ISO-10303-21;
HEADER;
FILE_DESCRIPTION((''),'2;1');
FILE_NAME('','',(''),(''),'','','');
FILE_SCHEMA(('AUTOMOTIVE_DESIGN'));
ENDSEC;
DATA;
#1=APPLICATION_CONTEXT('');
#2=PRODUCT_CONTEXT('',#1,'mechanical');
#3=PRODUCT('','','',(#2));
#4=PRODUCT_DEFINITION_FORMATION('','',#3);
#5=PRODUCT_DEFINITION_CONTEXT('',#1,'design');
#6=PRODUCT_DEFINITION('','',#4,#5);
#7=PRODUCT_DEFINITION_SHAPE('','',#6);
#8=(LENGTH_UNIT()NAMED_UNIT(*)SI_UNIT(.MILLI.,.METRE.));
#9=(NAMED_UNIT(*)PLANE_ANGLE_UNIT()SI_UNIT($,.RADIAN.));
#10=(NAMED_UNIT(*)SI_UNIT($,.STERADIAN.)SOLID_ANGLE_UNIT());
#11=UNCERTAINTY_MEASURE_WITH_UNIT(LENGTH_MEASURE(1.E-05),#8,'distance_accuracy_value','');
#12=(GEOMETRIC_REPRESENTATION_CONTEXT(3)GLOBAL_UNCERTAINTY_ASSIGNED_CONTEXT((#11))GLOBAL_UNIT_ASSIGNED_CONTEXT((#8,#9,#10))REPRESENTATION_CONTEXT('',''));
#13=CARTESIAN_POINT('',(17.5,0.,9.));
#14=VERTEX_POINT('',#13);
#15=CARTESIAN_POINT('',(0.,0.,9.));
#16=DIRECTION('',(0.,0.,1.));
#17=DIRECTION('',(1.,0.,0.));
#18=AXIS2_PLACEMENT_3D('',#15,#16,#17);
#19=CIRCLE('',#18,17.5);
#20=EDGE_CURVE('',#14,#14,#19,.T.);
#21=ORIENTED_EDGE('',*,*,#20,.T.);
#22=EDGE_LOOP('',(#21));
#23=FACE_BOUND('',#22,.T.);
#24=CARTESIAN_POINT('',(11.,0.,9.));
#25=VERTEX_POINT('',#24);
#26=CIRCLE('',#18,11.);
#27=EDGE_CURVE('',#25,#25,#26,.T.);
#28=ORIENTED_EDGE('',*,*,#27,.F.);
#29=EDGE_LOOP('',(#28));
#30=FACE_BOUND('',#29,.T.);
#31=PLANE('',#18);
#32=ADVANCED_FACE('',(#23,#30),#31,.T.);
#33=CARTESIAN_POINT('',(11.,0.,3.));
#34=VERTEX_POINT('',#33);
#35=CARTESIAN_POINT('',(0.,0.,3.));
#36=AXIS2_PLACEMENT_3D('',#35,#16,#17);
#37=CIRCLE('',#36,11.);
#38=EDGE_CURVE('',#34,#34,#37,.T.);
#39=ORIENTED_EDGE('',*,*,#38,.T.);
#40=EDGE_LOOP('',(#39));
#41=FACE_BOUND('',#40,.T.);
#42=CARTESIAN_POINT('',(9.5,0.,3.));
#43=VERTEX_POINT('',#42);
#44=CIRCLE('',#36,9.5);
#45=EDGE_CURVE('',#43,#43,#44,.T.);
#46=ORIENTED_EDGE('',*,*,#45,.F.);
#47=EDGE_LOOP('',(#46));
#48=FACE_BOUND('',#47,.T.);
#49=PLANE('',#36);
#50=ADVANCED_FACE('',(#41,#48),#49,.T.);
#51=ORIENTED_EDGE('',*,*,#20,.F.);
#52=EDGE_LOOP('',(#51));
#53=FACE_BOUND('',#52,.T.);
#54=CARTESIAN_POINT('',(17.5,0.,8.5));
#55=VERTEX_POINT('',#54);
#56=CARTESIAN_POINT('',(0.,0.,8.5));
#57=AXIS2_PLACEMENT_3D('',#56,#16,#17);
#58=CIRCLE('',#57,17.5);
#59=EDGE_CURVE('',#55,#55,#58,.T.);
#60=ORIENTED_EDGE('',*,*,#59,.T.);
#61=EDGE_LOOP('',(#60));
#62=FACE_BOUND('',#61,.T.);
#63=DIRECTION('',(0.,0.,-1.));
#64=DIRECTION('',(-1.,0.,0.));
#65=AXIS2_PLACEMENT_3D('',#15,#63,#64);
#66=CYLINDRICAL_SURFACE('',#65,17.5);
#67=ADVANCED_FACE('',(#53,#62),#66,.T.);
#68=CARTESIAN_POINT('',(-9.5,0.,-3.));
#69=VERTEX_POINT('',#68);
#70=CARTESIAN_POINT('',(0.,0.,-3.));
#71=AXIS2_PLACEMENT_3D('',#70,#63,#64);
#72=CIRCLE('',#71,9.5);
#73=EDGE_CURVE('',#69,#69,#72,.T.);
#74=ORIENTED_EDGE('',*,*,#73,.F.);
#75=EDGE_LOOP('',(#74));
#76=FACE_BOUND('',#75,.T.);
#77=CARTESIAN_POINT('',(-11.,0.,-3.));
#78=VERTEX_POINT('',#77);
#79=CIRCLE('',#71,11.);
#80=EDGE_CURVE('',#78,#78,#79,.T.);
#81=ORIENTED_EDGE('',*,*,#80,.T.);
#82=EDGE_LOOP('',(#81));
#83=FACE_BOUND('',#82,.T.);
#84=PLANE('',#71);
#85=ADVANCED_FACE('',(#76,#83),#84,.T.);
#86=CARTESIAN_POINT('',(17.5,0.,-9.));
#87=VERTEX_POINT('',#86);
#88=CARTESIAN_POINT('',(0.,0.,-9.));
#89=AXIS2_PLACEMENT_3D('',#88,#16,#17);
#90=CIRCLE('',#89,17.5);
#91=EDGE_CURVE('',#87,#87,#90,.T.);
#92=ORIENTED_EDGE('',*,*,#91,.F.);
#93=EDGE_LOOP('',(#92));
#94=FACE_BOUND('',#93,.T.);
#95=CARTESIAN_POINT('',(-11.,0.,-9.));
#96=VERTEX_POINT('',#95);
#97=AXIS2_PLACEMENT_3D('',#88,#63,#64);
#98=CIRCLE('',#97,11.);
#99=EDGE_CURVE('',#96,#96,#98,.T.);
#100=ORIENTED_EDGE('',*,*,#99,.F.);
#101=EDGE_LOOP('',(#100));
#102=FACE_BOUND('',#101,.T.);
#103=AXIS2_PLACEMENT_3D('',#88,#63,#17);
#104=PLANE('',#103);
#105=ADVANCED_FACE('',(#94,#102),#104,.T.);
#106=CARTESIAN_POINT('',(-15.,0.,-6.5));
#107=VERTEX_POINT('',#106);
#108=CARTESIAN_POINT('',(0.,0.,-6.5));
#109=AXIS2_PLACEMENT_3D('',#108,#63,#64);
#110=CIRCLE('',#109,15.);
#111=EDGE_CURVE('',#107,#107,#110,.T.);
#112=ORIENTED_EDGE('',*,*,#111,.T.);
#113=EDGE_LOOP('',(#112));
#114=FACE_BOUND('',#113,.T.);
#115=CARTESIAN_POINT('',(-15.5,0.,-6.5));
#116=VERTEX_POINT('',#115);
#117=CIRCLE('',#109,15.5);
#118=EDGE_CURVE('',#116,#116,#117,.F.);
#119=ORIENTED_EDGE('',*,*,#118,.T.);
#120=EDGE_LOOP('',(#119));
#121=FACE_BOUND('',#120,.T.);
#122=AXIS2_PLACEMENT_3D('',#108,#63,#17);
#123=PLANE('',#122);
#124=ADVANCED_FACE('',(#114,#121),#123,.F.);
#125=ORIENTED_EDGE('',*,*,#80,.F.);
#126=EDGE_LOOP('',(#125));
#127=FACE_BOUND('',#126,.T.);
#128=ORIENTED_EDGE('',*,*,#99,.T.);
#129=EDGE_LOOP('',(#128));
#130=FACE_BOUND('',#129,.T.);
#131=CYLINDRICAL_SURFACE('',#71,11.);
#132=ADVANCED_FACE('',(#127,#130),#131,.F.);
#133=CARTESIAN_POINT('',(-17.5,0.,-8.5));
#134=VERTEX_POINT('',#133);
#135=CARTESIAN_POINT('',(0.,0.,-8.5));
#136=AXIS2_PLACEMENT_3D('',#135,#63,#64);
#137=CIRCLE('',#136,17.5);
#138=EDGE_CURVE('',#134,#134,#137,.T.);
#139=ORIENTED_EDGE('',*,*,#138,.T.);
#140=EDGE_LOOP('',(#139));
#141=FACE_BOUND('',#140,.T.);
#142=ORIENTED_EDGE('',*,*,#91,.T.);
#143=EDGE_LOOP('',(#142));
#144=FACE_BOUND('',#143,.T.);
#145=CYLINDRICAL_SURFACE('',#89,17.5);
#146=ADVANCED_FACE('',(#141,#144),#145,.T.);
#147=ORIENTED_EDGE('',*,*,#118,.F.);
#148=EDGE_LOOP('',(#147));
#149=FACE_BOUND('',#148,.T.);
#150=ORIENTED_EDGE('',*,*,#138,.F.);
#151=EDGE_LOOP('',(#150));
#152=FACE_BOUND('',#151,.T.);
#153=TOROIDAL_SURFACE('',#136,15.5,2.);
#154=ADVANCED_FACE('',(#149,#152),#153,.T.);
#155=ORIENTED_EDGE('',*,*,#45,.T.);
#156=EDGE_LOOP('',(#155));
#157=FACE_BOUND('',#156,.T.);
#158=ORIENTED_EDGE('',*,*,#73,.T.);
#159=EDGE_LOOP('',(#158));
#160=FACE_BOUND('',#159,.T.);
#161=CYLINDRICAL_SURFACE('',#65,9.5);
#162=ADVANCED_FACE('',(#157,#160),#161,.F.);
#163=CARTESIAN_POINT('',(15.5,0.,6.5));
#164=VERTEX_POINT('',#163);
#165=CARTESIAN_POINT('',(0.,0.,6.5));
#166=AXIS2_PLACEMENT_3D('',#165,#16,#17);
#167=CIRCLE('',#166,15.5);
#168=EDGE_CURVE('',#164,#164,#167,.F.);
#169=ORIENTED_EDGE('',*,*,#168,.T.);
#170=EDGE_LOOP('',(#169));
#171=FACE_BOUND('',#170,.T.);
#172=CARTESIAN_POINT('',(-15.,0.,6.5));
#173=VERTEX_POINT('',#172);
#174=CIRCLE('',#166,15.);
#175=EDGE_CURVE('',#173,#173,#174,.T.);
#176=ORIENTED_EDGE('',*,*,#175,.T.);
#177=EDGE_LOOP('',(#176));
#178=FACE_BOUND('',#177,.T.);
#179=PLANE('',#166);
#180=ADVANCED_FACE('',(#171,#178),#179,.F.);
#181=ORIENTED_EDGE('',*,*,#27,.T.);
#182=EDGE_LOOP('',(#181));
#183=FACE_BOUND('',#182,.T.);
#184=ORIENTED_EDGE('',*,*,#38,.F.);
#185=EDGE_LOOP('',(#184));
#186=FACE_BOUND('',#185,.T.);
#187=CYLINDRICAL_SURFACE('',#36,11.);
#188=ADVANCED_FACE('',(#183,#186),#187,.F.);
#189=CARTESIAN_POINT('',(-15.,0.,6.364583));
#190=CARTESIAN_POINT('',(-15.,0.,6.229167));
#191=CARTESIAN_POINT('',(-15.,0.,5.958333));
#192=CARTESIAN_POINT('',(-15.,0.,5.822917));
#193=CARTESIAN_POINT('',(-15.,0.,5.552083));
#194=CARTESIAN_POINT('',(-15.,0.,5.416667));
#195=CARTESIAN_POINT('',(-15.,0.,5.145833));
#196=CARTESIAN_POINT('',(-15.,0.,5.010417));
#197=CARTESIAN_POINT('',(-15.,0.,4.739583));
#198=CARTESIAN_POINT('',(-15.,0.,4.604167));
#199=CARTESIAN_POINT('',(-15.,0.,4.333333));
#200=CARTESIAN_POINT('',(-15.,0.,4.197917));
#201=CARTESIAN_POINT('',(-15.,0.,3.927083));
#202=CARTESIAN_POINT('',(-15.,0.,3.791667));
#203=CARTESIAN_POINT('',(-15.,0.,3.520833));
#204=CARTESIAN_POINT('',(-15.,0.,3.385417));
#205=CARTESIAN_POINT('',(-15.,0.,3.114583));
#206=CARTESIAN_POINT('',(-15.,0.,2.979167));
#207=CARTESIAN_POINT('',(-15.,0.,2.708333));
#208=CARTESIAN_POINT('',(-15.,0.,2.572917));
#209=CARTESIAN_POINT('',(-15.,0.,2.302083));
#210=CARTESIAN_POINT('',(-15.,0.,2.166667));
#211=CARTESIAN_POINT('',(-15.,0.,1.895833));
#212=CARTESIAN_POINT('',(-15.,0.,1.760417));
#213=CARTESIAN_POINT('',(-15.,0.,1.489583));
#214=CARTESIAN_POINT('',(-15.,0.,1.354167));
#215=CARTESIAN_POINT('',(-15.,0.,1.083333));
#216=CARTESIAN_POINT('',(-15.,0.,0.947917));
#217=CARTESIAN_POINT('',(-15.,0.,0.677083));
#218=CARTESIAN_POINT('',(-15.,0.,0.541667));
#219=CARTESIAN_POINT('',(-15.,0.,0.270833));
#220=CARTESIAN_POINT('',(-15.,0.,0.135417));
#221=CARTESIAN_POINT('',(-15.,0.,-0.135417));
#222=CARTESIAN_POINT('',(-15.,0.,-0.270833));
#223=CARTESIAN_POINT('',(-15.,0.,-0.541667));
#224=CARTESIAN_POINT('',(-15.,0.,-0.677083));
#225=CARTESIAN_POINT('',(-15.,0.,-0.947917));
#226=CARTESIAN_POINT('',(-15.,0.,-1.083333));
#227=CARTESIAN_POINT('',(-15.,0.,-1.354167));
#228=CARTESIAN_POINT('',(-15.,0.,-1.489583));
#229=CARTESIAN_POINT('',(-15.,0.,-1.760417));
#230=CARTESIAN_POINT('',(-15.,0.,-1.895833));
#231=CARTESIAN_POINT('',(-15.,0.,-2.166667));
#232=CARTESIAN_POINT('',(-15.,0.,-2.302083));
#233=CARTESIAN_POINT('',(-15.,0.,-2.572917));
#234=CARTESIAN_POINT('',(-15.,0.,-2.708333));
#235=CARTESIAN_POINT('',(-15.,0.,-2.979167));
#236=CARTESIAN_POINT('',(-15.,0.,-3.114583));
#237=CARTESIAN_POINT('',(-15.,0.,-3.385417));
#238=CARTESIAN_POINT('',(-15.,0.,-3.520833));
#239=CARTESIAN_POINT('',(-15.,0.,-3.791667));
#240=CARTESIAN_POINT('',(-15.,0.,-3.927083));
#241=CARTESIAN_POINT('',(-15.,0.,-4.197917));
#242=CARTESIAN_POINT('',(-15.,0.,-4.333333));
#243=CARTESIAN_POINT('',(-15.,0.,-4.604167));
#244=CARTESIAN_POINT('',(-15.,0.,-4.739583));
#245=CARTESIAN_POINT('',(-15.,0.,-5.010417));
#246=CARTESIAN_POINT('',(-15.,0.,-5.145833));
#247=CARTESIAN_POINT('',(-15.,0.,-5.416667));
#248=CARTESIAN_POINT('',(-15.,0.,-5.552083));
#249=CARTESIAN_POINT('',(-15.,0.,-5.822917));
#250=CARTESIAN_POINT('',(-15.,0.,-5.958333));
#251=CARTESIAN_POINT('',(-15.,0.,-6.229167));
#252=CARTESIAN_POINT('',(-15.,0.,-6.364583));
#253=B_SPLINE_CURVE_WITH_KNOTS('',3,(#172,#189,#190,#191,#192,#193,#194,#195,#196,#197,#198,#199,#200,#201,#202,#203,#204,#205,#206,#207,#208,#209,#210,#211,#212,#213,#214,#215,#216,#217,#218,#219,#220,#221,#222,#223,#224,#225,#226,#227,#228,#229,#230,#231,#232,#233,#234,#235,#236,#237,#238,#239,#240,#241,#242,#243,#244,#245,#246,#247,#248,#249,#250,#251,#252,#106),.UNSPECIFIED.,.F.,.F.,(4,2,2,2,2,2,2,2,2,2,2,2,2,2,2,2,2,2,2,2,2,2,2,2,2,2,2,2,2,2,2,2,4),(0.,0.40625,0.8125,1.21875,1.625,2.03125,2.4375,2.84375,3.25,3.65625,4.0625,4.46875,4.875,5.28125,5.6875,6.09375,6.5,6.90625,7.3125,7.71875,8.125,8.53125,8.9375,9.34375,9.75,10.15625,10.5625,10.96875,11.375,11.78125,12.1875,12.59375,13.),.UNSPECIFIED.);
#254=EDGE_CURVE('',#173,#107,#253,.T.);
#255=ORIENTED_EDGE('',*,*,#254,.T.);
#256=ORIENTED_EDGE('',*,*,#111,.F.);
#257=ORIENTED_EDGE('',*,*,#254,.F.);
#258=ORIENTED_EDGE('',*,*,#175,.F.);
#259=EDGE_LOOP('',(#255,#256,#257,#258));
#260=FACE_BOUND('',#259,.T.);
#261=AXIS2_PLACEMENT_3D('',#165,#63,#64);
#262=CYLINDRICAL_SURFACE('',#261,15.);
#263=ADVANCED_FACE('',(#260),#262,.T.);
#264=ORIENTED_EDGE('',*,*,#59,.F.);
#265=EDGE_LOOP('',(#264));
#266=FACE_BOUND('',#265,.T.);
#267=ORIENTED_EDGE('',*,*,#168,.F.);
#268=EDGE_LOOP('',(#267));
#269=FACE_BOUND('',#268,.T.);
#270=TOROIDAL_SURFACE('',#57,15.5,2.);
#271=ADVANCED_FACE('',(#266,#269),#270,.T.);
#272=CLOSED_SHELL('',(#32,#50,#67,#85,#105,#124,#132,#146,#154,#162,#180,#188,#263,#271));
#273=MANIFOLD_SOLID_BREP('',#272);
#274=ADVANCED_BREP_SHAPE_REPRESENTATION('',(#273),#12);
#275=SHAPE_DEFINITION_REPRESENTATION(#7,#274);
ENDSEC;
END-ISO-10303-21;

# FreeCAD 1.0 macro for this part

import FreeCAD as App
import Part
import Sketcher

V = App.Vector


def edges_at(feature, points):
    """Names of the edges that pass closest to the given points."""
    edges = feature.Shape.Edges
    near = lambda p: min(range(len(edges)), key=lambda i: edges[i].distToShape(Part.Vertex(*p))[0])
    return sorted({f"Edge{near(p) + 1}" for p in points})

doc = App.newDocument("Part")
body = doc.addObject("PartDesign::Body", "Body")

sketch1 = body.newObject("Sketcher::SketchObject", "Sketch")
sketch1.AttachmentSupport = (doc.getObject("XY_Plane"), [""])
sketch1.MapMode = "FlatFace"
sketch1.addGeometry(Part.Circle(V(0, 0, 0), V(0, 0, 1), 15), False)
sketch1.addConstraint(Sketcher.Constraint("Coincident", 0, 3, -1, 1))
sketch1.addConstraint(Sketcher.Constraint("Diameter", 0, 30.0))
pad1 = body.newObject("PartDesign::Pad", "Pad")
pad1.Profile = sketch1
pad1.Length = 13
pad1.Midplane = True

sketch2 = body.newObject("Sketcher::SketchObject", "Sketch001")
sketch2.AttachmentSupport = (doc.getObject("XY_Plane"), [""])
sketch2.MapMode = "FlatFace"
sketch2.AttachmentOffset = App.Placement(V(0, 0, 6.5), App.Rotation())
sketch2.addGeometry(Part.Circle(V(0, 0, 0), V(0, 0, 1), 18), False)
sketch2.addConstraint(Sketcher.Constraint("Coincident", 0, 3, -1, 1))
sketch2.addConstraint(Sketcher.Constraint("Diameter", 0, 35.0))
pad2 = body.newObject("PartDesign::Pad", "Pad001")
pad2.Profile = sketch2
pad2.Length = 2.5
doc.recompute()

mirrored = body.newObject("PartDesign::Mirrored", "Mirrored")
mirrored.Originals = [pad2]
mirrored.MirrorPlane = (doc.getObject("XY_Plane"), [""])
body.Tip = mirrored

sketch3 = body.newObject("Sketcher::SketchObject", "Sketch002")
sketch3.AttachmentSupport = (doc.getObject("XY_Plane"), [""])
sketch3.MapMode = "FlatFace"
sketch3.AttachmentOffset = App.Placement(V(0, 0, 9), App.Rotation())
sketch3.addGeometry(Part.Circle(V(0, 0, 0), V(0, 0, 1), 11), False)
sketch3.addConstraint(Sketcher.Constraint("Coincident", 0, 3, -1, 1))
sketch3.addConstraint(Sketcher.Constraint("Diameter", 0, 22.0))
pocket1 = body.newObject("PartDesign::Pocket", "Pocket")
pocket1.Profile = sketch3
pocket1.Length = 6

sketch4 = body.newObject("Sketcher::SketchObject", "Sketch003")
sketch4.AttachmentSupport = (doc.getObject("XY_Plane"), [""])
sketch4.MapMode = "FlatFace"
sketch4.AttachmentOffset = App.Placement(V(0, 0, -3), App.Rotation())
sketch4.addGeometry(Part.Circle(V(0, 0, 0), V(0, 0, 1), 11), False)
sketch4.addConstraint(Sketcher.Constraint("Coincident", 0, 3, -1, 1))
sketch4.addConstraint(Sketcher.Constraint("Diameter", 0, 22.0))
pocket2 = body.newObject("PartDesign::Pocket", "Pocket001")
pocket2.Profile = sketch4
pocket2.Length = 6

sketch5 = body.newObject("Sketcher::SketchObject", "Sketch004")
sketch5.AttachmentSupport = (doc.getObject("XY_Plane"), [""])
sketch5.MapMode = "FlatFace"
sketch5.AttachmentOffset = App.Placement(V(0, 0, -3), App.Rotation())
sketch5.addGeometry(Part.Circle(V(0, 0, 0), V(0, 0, 1), 10), False)
sketch5.addConstraint(Sketcher.Constraint("Coincident", 0, 3, -1, 1))
sketch5.addConstraint(Sketcher.Constraint("Diameter", 0, 19.0))
pocket3 = body.newObject("PartDesign::Pocket", "Pocket002")
pocket3.Profile = sketch5
pocket3.Type = "ThroughAll"
pocket3.Reversed = True
doc.recompute()

fillet = body.newObject("PartDesign::Fillet", "Fillet")
fillet.Base = (pocket3, edges_at(pocket3, [(-17.5, 0, 6.5), (-17.5, 0, -6.5)]))
fillet.Radius = 2

doc.recompute()
